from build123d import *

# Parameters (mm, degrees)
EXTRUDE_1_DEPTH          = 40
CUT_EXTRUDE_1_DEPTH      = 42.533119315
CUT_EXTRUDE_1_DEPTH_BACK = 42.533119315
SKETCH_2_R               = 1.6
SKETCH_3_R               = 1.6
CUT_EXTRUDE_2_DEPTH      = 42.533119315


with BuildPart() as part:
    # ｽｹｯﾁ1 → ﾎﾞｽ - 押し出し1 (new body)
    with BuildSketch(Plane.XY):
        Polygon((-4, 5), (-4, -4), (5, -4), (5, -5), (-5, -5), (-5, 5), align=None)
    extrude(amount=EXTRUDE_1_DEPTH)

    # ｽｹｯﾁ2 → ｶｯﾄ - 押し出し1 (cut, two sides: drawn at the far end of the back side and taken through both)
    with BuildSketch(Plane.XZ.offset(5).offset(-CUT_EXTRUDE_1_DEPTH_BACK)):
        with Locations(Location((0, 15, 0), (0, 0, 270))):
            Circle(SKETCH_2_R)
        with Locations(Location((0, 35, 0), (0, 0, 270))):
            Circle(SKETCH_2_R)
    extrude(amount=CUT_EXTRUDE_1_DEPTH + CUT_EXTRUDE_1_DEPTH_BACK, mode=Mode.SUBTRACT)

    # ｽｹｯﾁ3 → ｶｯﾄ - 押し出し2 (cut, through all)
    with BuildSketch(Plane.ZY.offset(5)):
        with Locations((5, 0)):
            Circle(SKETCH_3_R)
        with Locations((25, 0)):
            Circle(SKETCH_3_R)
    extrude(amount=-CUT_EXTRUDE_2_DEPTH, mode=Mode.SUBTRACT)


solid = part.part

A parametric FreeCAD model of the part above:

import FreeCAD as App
import Part
import Sketcher
from FreeCAD import Vector


def add_polygon(sketch, points):
    """Adds a closed chain of lines whose ends are joined by coincident constraints."""
    first, n = sketch.GeometryCount, len(points)
    for a, b in zip(points, points[1:] + points[:1]):
        sketch.addGeometry(Part.LineSegment(App.Vector(*a, 0), App.Vector(*b, 0)), False)
    for i in range(n):
        sketch.addConstraint(Sketcher.Constraint("Coincident", first + i, 2, first + (i + 1) % n, 1))

doc = App.newDocument("Part")
params = doc.addObject("Spreadsheet::Sheet", "Params")
for row, (alias, value) in enumerate([
    ("sketch1_width", "1 mm"),
    ("sketch1_width2", "10 mm"),
    ("pad1_length", "40 mm"),
    ("sketch2_diameter", "3.2 mm"),
    ("sketch3_diameter", "3.2 mm"),
], start=1):
    params.set(f"A{row}", alias)
    params.set(f"B{row}", "=" + value)
    params.setAlias(f"B{row}", alias)

body = doc.addObject("PartDesign::Body", "Body")

sketch1 = body.newObject("Sketcher::SketchObject", "Sketch")
sketch1.AttachmentSupport = (doc.getObject("XY_Plane"), [""])
sketch1.MapMode = "FlatFace"
add_polygon(sketch1, [(-4, -4), (-4, 5), (-5, 5), (-5, -5), (5, -5), (5, -4)])
sketch1.addConstraint(Sketcher.Constraint("Vertical", 0))
sketch1.addConstraint(Sketcher.Constraint("Horizontal", 1))
sketch1.addConstraint(Sketcher.Constraint("Vertical", 2))
sketch1.addConstraint(Sketcher.Constraint("Horizontal", 3))
sketch1.addConstraint(Sketcher.Constraint("Vertical", 4))
sketch1.addConstraint(Sketcher.Constraint("Horizontal", 5))
sketch1.addConstraint(Sketcher.Constraint("Symmetric", 1, 2, 3, 2, -1, 1))
sketch1.addConstraint(Sketcher.Constraint("Equal", 5, 0))
sketch1.addConstraint(Sketcher.Constraint("Equal", 3, 2))
sketch1.addConstraint(Sketcher.Constraint("DistanceX", 1, 2, 1, 1, 1.0))
sketch1.addConstraint(Sketcher.Constraint("DistanceX", 3, 1, 3, 2, 10.0))
sketch1.setExpression("Constraints[15]", "Params.sketch1_width")
sketch1.setExpression("Constraints[16]", "Params.sketch1_width2")
pad1 = body.newObject("PartDesign::Pad", "Pad")
pad1.Profile = sketch1
pad1.setExpression("Length", "Params.pad1_length")

sketch2 = body.newObject("Sketcher::SketchObject", "Sketch001")
sketch2.AttachmentSupport = (doc.getObject("XZ_Plane"), [""])
sketch2.MapMode = "FlatFace"
sketch2.AttachmentOffset = App.Placement(Vector(0, 0, 5), App.Rotation())
sketch2.addGeometry(Part.Circle(Vector(0, 15, 0), Vector(0, 0, 1), 1.6), False)
sketch2.addGeometry(Part.Circle(Vector(0, 35, 0), Vector(0, 0, 1), 1.6), False)
sketch2.addConstraint(Sketcher.Constraint("Equal", 0, 1))
sketch2.addConstraint(Sketcher.Constraint("PointOnObject", 0, 3, -2))
sketch2.addConstraint(Sketcher.Constraint("PointOnObject", 1, 3, -2))
sketch2.addConstraint(Sketcher.Constraint("Diameter", 0, 3.2))
sketch2.addConstraint(Sketcher.Constraint("DistanceY", -1, 1, 0, 3, 15.0))
sketch2.addConstraint(Sketcher.Constraint("DistanceY", -1, 1, 1, 3, 35.0))
sketch2.setExpression("Constraints[3]", "Params.sketch2_diameter")
pocket1 = body.newObject("PartDesign::Pocket", "Pocket")
pocket1.Profile = sketch2
pocket1.Type = "ThroughAll"
pocket1.Midplane = True

sketch3 = body.newObject("Sketcher::SketchObject", "Sketch002")
sketch3.AttachmentSupport = (doc.getObject("YZ_Plane"), [""])
sketch3.MapMode = "FlatFace"
sketch3.AttachmentOffset = App.Placement(Vector(0, 0, -5), App.Rotation())
sketch3.addGeometry(Part.Circle(Vector(0, 5, 0), Vector(0, 0, 1), 1.6), False)
sketch3.addGeometry(Part.Circle(Vector(0, 25, 0), Vector(0, 0, 1), 1.6), False)
sketch3.addConstraint(Sketcher.Constraint("Equal", 0, 1))
sketch3.addConstraint(Sketcher.Constraint("PointOnObject", 0, 3, -2))
sketch3.addConstraint(Sketcher.Constraint("PointOnObject", 1, 3, -2))
sketch3.addConstraint(Sketcher.Constraint("Diameter", 0, 3.2))
sketch3.addConstraint(Sketcher.Constraint("DistanceY", -1, 1, 0, 3, 5.0))
sketch3.addConstraint(Sketcher.Constraint("DistanceY", -1, 1, 1, 3, 25.0))
sketch3.setExpression("Constraints[3]", "Params.sketch3_diameter")
pocket2 = body.newObject("PartDesign::Pocket", "Pocket001")
pocket2.Profile = sketch3
pocket2.Type = "ThroughAll"
pocket2.Reversed = True

doc.recompute()
